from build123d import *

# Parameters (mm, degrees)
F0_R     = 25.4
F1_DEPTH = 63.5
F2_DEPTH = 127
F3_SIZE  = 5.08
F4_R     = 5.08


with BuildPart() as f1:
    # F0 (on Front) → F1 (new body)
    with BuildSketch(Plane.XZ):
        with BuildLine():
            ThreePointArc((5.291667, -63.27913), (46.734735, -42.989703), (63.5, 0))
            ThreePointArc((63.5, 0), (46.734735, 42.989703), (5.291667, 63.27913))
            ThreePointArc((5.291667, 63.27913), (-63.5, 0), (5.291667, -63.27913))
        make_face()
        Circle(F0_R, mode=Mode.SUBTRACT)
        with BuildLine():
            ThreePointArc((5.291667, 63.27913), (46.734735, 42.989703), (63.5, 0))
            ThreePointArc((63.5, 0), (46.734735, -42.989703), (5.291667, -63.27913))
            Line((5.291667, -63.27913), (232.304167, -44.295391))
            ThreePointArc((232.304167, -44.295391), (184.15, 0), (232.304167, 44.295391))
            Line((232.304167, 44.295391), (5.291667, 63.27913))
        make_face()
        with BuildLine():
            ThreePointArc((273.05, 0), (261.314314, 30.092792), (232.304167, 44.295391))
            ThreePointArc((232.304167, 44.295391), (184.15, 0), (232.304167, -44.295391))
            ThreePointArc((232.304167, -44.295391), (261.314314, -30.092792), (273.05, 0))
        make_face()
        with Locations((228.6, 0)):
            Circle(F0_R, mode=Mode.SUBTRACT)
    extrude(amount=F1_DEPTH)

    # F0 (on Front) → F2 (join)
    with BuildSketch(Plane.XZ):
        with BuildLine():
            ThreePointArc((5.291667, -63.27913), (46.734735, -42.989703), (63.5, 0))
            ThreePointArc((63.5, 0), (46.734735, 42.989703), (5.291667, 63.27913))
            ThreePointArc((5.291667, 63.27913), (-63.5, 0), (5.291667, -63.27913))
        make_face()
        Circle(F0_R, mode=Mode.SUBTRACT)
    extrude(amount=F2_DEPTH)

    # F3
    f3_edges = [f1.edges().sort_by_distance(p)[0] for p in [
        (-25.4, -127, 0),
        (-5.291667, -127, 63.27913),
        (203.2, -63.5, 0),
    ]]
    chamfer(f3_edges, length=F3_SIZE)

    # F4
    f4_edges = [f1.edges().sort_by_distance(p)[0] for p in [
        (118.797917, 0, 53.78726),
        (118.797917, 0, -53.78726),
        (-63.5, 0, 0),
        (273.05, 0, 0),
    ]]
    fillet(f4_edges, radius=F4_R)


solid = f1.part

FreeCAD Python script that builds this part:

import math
import FreeCAD as App
import Part
import Sketcher

V = App.Vector
Q = App.Units.Quantity


def edges_at(feature, points):
    """Names of the edges that pass closest to the given points."""
    edges = feature.Shape.Edges
    near = lambda p: min(range(len(edges)), key=lambda i: edges[i].distToShape(Part.Vertex(*p))[0])
    return sorted({f"Edge{near(p) + 1}" for p in points})

doc = App.newDocument("Part")
body = doc.addObject("PartDesign::Body", "Body")

sketch1 = body.newObject("Sketcher::SketchObject", "Sketch")
sketch1.AttachmentSupport = (doc.getObject("XZ_Plane"), [""])
sketch1.MapMode = "FlatFace"
sketch1.addGeometry(Part.ArcOfCircle(Part.Circle(V(0, 0, 0), V(0, 0, 1), 63.5), math.radians(85.219808), math.radians(274.780192)), False)
sketch1.addGeometry(Part.LineSegment(V(5.291667, -63.27913, 0), V(232.304167, -44.295391, 0)), False)
sketch1.addGeometry(Part.ArcOfCircle(Part.Circle(V(228.599999, 0.000001, 0), V(0, 0, 1), 44.450001), math.radians(-85.219806), math.radians(-0.000001)), False)
sketch1.addGeometry(Part.ArcOfCircle(Part.Circle(V(228.599999, -0.000001, 0), V(0, 0, 1), 44.450001), math.radians(0.000001), math.radians(85.219806)), False)
sketch1.addGeometry(Part.LineSegment(V(232.304167, 44.295391, 0), V(5.291667, 63.27913, 0)), False)
sketch1.addGeometry(Part.Circle(V(0, 0, 0), V(0, 0, 1), 25.4), False)
sketch1.addGeometry(Part.Circle(V(228.6, 0, 0), V(0, 0, 1), 25.4), False)
sketch1.addConstraint(Sketcher.Constraint("Tangent", 0, 2, 1, 1))
sketch1.addConstraint(Sketcher.Constraint("Tangent", 1, 2, 2, 1))
sketch1.addConstraint(Sketcher.Constraint("Tangent", 2, 2, 3, 1))
sketch1.addConstraint(Sketcher.Constraint("Tangent", 3, 2, 4, 1))
sketch1.addConstraint(Sketcher.Constraint("Tangent", 4, 2, 0, 1))
sketch1.addConstraint(Sketcher.Constraint("Coincident", 0, 3, -1, 1))
sketch1.addConstraint(Sketcher.Constraint("Coincident", 5, 3, -1, 1))
sketch1.addConstraint(Sketcher.Constraint("Coincident", 6, 3, 2, 3))
sketch1.addConstraint(Sketcher.Constraint("Equal", 2, 3))
sketch1.addConstraint(Sketcher.Constraint("Equal", 5, 6))
sketch1.addConstraint(Sketcher.Constraint("PointOnObject", 2, 3, -1))
sketch1.addConstraint(Sketcher.Constraint("PointOnObject", 2, 2, -1))
sketch1.addConstraint(Sketcher.Constraint("Diameter", 5, Q("2 in")))
sketch1.addConstraint(Sketcher.Constraint("Radius", 0, Q("2.5 in")))
sketch1.addConstraint(Sketcher.Constraint("Radius", 2, Q("1.7500001 in")))
sketch1.addConstraint(Sketcher.Constraint("DistanceX", -1, 1, 2, 3, Q("8.9999999 in")))
pad1 = body.newObject("PartDesign::Pad", "Pad")
pad1.Profile = sketch1
pad1.Length = Q("2.5 in")

sketch2 = body.newObject("Sketcher::SketchObject", "Sketch001")
sketch2.AttachmentSupport = (doc.getObject("XZ_Plane"), [""])
sketch2.MapMode = "FlatFace"
sketch2.addGeometry(Part.ArcOfCircle(Part.Circle(V(0, 0, 0), V(0, 0, 1), 63.5), math.radians(-85.219808), math.radians(0)), False)
sketch2.addGeometry(Part.ArcOfCircle(Part.Circle(V(0, 0, 0), V(0, 0, 1), 63.5), math.radians(0), math.radians(85.219808)), False)
sketch2.addGeometry(Part.ArcOfCircle(Part.Circle(V(0, 0, 0), V(0, 0, 1), 63.5), math.radians(85.219808), math.radians(274.780192)), False)
sketch2.addGeometry(Part.Circle(V(0, 0, 0), V(0, 0, 1), 25.4), False)
sketch2.addConstraint(Sketcher.Constraint("Tangent", 0, 2, 1, 1))
sketch2.addConstraint(Sketcher.Constraint("Tangent", 1, 2, 2, 1))
sketch2.addConstraint(Sketcher.Constraint("Tangent", 2, 2, 0, 1))
sketch2.addConstraint(Sketcher.Constraint("Coincident", 0, 3, -1, 1))
sketch2.addConstraint(Sketcher.Constraint("Coincident", 3, 3, -1, 1))
sketch2.addConstraint(Sketcher.Constraint("PointOnObject", 0, 2, -1))
sketch2.addConstraint(Sketcher.Constraint("Vertical", 1, 2, 2, 2))
sketch2.addConstraint(Sketcher.Constraint("Diameter", 3, Q("2 in")))
sketch2.addConstraint(Sketcher.Constraint("Radius", 0, Q("2.5 in")))
sketch2.addConstraint(Sketcher.Constraint("DistanceY", -1, 1, 1, 2, Q("63.27913 mm")))
pad2 = body.newObject("PartDesign::Pad", "Pad001")
pad2.Profile = sketch2
pad2.Length = Q("5 in")
doc.recompute()

chamfer = body.newObject("PartDesign::Chamfer", "Chamfer")
chamfer.Base = (pad2, edges_at(pad2, [(-25.4, -127, 0), (-63.5, -127, 0), (203.2, -63.5, 0)]))
chamfer.Size = Q("0.2 in")
doc.recompute()

fillet = body.newObject("PartDesign::Fillet", "Fillet")
fillet.Base = (chamfer, edges_at(chamfer, [
    (118.798, 0, 53.787),
    (118.798, 0, -53.787),
    (-63.5, 0, 0),
    (261.314, 0, -30.093),
]))
fillet.Radius = Q("0.2 in")

doc.recompute()
